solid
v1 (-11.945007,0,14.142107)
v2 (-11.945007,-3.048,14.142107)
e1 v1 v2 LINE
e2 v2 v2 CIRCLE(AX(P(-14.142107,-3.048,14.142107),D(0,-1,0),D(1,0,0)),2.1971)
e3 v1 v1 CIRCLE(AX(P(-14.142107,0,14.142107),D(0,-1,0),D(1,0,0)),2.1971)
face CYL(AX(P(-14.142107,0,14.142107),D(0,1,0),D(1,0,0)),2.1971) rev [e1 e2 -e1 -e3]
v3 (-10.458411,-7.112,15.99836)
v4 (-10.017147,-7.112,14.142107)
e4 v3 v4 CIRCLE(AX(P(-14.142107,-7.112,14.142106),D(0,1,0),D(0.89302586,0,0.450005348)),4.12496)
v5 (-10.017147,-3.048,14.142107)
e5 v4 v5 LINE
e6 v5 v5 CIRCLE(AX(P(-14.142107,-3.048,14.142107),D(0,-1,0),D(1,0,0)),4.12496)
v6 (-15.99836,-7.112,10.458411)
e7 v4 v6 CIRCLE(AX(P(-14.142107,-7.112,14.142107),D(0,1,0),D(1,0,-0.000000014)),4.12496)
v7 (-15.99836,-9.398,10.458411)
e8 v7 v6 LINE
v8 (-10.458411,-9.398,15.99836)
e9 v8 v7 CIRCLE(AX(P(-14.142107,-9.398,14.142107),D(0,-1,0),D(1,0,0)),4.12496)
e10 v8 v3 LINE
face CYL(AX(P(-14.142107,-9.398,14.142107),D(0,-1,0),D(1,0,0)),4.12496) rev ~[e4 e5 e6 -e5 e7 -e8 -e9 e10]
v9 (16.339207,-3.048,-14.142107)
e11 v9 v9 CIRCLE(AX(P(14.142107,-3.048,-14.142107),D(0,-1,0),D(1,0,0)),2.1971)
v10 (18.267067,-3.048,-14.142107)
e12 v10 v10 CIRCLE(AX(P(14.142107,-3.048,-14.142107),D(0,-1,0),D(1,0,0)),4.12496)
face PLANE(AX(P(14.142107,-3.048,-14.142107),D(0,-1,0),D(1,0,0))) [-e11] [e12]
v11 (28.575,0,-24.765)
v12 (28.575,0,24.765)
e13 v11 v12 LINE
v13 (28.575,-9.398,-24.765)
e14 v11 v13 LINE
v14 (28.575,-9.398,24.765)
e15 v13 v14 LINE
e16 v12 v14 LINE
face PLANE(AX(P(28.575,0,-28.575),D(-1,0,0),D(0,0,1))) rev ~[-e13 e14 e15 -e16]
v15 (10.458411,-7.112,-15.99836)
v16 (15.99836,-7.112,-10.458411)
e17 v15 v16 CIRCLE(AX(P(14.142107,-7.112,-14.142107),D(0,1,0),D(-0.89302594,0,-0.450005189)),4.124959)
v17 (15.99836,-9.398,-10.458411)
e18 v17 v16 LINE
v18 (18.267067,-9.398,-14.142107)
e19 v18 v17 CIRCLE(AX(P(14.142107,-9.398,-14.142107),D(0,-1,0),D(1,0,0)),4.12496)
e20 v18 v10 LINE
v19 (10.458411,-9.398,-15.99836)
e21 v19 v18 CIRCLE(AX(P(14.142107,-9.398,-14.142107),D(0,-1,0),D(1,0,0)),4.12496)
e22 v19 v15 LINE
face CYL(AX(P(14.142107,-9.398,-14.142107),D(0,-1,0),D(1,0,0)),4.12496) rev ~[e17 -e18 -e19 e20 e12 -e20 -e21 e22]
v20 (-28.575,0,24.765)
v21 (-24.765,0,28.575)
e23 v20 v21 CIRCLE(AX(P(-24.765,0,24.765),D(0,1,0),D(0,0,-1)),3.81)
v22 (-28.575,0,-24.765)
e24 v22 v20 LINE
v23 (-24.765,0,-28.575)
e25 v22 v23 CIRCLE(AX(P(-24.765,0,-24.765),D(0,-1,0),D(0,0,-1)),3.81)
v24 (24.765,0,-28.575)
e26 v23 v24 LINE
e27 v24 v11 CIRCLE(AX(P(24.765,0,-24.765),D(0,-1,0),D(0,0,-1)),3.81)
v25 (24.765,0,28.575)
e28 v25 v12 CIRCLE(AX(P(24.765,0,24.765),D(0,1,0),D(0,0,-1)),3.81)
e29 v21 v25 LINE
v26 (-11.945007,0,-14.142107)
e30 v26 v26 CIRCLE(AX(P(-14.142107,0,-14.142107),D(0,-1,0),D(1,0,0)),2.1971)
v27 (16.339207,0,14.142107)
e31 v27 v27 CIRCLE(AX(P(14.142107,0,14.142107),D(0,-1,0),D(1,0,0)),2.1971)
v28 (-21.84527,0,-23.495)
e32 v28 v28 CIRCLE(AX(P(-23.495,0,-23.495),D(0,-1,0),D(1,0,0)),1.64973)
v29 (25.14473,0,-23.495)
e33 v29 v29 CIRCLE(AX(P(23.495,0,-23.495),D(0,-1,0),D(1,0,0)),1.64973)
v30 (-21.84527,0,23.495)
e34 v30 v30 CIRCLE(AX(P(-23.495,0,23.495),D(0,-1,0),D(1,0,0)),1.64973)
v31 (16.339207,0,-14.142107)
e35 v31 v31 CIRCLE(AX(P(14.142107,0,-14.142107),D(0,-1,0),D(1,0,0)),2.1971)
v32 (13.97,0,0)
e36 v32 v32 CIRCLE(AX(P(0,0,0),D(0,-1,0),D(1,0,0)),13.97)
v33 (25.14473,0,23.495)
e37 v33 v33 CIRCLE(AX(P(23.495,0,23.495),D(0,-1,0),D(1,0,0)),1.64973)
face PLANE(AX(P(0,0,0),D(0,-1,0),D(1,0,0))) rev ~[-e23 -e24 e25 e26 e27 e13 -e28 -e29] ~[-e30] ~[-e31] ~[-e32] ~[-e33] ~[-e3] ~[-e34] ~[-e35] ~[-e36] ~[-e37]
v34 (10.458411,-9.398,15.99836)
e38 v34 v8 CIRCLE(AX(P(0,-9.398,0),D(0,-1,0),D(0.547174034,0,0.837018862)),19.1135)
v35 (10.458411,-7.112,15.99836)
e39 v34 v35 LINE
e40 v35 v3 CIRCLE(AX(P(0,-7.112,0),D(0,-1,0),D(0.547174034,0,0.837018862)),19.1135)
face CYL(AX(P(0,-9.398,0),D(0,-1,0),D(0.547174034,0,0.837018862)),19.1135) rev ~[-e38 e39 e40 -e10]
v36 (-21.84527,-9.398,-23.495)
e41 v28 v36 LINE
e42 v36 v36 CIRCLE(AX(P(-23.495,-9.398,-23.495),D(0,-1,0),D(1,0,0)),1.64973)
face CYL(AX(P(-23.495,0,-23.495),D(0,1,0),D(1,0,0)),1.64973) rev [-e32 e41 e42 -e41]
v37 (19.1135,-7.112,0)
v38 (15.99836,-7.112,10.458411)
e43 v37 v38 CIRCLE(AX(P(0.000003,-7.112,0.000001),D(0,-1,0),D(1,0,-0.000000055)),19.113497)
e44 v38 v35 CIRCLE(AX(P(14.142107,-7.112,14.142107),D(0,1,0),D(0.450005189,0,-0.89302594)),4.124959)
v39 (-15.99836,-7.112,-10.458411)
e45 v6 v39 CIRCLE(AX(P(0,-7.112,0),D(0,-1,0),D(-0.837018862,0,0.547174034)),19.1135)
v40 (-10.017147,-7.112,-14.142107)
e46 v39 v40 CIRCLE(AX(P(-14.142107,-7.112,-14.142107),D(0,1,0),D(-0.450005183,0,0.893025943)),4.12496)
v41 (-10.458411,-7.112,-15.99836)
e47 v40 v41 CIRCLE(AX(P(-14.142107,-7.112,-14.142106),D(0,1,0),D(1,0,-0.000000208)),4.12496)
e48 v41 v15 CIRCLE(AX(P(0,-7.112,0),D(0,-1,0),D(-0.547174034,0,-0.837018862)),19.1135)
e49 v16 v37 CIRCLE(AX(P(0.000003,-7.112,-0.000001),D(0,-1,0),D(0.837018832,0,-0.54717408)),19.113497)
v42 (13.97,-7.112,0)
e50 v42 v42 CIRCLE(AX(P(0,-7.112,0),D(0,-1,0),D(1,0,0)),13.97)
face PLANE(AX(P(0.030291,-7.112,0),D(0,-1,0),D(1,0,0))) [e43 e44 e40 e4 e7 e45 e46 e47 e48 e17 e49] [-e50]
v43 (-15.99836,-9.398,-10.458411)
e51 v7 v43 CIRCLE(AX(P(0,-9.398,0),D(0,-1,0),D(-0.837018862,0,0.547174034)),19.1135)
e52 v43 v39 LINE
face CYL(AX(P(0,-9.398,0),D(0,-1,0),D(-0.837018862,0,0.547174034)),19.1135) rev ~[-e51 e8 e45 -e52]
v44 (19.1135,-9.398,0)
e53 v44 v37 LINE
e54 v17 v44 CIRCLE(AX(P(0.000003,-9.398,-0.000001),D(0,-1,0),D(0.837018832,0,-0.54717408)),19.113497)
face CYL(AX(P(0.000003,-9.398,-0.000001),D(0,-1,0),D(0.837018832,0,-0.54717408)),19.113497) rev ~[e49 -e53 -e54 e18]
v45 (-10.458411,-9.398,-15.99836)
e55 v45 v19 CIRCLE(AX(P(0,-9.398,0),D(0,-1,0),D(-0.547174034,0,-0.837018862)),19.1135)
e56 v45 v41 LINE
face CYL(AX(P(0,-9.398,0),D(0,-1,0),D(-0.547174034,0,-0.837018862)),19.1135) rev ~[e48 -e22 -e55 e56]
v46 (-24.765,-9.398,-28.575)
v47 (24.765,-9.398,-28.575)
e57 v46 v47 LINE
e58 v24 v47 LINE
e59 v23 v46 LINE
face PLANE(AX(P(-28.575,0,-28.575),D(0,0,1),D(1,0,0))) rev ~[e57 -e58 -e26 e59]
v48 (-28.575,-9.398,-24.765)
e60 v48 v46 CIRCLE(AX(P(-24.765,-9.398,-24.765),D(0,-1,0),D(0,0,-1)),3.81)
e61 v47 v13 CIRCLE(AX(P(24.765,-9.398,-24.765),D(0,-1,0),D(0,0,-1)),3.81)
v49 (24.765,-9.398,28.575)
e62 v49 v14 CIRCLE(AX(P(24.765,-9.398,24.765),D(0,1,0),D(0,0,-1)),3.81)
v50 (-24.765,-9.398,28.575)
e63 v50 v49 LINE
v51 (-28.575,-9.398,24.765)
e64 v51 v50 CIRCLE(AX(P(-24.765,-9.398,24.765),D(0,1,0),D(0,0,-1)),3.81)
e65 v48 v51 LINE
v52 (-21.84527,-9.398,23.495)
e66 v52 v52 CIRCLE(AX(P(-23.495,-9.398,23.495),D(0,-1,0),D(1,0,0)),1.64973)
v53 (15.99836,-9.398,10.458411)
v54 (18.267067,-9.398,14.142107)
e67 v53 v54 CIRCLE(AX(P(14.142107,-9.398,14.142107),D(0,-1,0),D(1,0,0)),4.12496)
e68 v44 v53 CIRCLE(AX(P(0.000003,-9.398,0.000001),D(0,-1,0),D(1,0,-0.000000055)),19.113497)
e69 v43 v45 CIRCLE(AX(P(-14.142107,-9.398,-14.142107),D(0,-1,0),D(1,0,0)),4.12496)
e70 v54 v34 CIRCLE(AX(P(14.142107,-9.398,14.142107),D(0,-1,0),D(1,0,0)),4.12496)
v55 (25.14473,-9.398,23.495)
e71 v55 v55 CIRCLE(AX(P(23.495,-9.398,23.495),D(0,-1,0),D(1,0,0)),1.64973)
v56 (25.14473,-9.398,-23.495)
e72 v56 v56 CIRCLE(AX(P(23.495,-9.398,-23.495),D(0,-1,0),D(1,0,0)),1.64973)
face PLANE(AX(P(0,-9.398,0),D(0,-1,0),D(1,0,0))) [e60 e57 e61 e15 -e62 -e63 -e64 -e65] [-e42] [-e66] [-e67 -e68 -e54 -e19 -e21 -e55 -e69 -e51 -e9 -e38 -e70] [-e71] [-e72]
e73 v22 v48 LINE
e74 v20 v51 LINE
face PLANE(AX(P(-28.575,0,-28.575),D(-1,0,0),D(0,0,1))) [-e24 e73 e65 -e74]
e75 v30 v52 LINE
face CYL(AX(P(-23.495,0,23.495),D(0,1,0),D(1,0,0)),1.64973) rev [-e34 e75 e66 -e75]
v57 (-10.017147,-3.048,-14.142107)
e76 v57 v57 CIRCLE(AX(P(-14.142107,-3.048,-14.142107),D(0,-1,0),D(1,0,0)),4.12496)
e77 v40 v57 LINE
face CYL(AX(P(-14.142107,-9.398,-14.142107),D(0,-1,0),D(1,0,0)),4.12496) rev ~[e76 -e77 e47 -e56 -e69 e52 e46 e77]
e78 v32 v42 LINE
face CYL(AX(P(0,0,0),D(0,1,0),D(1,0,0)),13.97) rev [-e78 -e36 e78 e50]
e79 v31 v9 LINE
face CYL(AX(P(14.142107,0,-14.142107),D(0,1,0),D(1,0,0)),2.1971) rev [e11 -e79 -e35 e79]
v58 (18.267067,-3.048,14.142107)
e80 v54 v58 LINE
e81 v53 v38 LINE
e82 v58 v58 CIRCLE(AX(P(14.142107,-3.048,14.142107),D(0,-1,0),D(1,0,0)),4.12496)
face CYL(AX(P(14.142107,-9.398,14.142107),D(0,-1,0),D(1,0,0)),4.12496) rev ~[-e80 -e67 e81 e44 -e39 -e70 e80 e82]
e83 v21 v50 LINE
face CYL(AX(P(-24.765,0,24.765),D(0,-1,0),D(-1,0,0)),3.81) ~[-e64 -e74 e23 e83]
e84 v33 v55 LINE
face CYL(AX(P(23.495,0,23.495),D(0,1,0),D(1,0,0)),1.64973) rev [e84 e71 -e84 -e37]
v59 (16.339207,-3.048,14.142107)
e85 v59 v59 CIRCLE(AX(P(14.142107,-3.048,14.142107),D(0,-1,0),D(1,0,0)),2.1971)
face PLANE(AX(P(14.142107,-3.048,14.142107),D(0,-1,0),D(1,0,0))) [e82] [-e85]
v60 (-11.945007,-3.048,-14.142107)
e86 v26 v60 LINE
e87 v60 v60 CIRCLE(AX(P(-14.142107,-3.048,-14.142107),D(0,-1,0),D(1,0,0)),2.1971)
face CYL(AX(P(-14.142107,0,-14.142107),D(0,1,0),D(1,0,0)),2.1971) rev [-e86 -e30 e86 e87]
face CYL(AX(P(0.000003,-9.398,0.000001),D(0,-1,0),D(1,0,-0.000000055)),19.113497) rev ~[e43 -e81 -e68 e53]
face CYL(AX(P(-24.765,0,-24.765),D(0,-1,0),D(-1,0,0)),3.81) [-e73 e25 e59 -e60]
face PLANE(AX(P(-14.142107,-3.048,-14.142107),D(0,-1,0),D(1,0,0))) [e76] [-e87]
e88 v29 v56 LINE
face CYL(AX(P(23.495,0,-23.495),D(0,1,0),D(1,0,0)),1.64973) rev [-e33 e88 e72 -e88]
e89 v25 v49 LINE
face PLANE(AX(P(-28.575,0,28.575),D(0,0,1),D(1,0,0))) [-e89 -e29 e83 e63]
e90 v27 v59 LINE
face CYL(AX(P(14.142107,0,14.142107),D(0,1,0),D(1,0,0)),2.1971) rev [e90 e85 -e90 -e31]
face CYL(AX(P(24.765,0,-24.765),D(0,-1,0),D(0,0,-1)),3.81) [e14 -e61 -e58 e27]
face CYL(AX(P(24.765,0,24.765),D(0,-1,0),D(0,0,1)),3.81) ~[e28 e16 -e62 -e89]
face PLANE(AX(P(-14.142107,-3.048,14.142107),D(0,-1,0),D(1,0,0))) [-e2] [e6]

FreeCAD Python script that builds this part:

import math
import FreeCAD as App
import Part
import Sketcher
Q = App.Units.Quantity


def edges_at(feature, points):
    """Names of the edges that pass closest to the given points."""
    edges = feature.Shape.Edges
    near = lambda p: min(range(len(edges)), key=lambda i: edges[i].distToShape(Part.Vertex(*p))[0])
    return sorted({f"Edge{near(p) + 1}" for p in points})


def add_polygon(sketch, points):
    """Adds a closed chain of lines whose ends are joined by coincident constraints."""
    first, n = sketch.GeometryCount, len(points)
    for a, b in zip(points, points[1:] + points[:1]):
        sketch.addGeometry(Part.LineSegment(App.Vector(*a, 0), App.Vector(*b, 0)), False)
    for i in range(n):
        sketch.addConstraint(Sketcher.Constraint("Coincident", first + i, 2, first + (i + 1) % n, 1))

doc = App.newDocument("Part")
params = doc.addObject("Spreadsheet::Sheet", "Params")
for row, (alias, value) in enumerate([
    ("sketch1_diameter", "1.1 in"),
    ("sketch1_diameter2", "0.173 in"),
    ("sketch1_width", "2.25 in"),
    ("pad1_length", "0.37 in"),
    ("sketch2_diameter", "0.173 in"),
    ("pocket1_length", "0.25 in"),
    ("sketch3_diameter", "1.1 in"),
    ("pocket2_length", "0.09 in"),
    ("fillet_radius", "0.15 in"),
], start=1):
    params.set(f"A{row}", alias)
    params.set(f"B{row}", "=" + value)
    params.setAlias(f"B{row}", alias)

body = doc.addObject("PartDesign::Body", "Body")

sketch1 = doc.addObject("Sketcher::SketchObject", "Sketch")
body.addObject(sketch1)
sketch1.AttachmentSupport = (doc.XZ_Plane, [""])
sketch1.MapMode = "FlatFace"
add_polygon(sketch1, [(-28.575, 28.575), (-28.575, -28.575), (28.575, -28.575), (28.575, 28.575)])
sketch1.addGeometry(Part.Circle(App.Vector(-23.495, -23.495, 0), App.Vector(0, 0, 1), 1.64973), False)
sketch1.addGeometry(Part.Circle(App.Vector(-14.142107, -14.142107, 0), App.Vector(0, 0, 1), 2.1971), False)
sketch1.addGeometry(Part.Circle(App.Vector(0, 0, 0), App.Vector(0, 0, 1), 13.97), False)
sketch1.addGeometry(Part.Circle(App.Vector(23.495, -23.495, 0), App.Vector(0, 0, 1), 1.64973), False)
sketch1.addGeometry(Part.Circle(App.Vector(14.142107, -14.142107, 0), App.Vector(0, 0, 1), 2.1971), False)
sketch1.addGeometry(Part.Circle(App.Vector(-14.142107, 14.142107, 0), App.Vector(0, 0, 1), 2.1971), False)
sketch1.addGeometry(Part.Circle(App.Vector(-23.495, 23.495, 0), App.Vector(0, 0, 1), 1.64973), False)
sketch1.addGeometry(Part.Circle(App.Vector(14.142107, 14.142107, 0), App.Vector(0, 0, 1), 2.1971), False)
sketch1.addGeometry(Part.Circle(App.Vector(23.495, 23.495, 0), App.Vector(0, 0, 1), 1.64973), False)
sketch1.addConstraint([
    Sketcher.Constraint("Vertical", 0),
    Sketcher.Constraint("Horizontal", 1),
    Sketcher.Constraint("Vertical", 2),
    Sketcher.Constraint("Horizontal", 3),
    Sketcher.Constraint("Coincident", 6, 3, -1, 1),
    Sketcher.Constraint("Equal", 4, 7),
    Sketcher.Constraint("Equal", 5, 8),
    Sketcher.Constraint("Equal", 8, 9),
    Sketcher.Constraint("Equal", 7, 10),
    Sketcher.Constraint("Equal", 9, 11),
    Sketcher.Constraint("Equal", 10, 12),
    Sketcher.Constraint("Symmetric", 8, 3, 9, 3, -1, 1),
    Sketcher.Constraint("Symmetric", 7, 3, 10, 3, -1, 1),
    Sketcher.Constraint("Symmetric", 5, 3, 11, 3, -1, 1),
    Sketcher.Constraint("Symmetric", 4, 3, 12, 3, -1, 1),
    Sketcher.Constraint("Symmetric", 0, 2, 2, 2, -1, 1),
    Sketcher.Constraint("Symmetric", 4, 3, 7, 3, -2),
    Sketcher.Constraint("Symmetric", 5, 3, 8, 3, -2),
    Sketcher.Constraint("Equal", 3, 0),
    Sketcher.Constraint("Diameter", 6, Q("1.1 in")),
    Sketcher.Constraint("Diameter", 5, Q("0.173 in")),
    Sketcher.Constraint("Diameter", 4, Q("0.1299 in")),
    Sketcher.Constraint("DistanceX", 1, 1, 1, 2, Q("2.25 in")),
    Sketcher.Constraint("DistanceX", 0, 2, 4, 3, Q("0.2 in")),
    Sketcher.Constraint("DistanceY", 0, 2, 4, 3, Q("0.2 in")),
    Sketcher.Constraint("DistanceX", 5, 3, -1, 1, 14.142107),
    Sketcher.Constraint("DistanceY", 5, 3, -1, 1, 14.142107),
])
sketch1.setExpression("Constraints[23]", "Params.sketch1_diameter")
sketch1.setExpression("Constraints[24]", "Params.sketch1_diameter2")
sketch1.setExpression("Constraints[26]", "Params.sketch1_width")
pad1 = doc.addObject("PartDesign::Pad", "Pad")
body.addObject(pad1)
pad1.Profile = sketch1
pad1.setExpression("Length", "Params.pad1_length")

sketch2 = doc.addObject("Sketcher::SketchObject", "Sketch001")
body.addObject(sketch2)
sketch2.AttachmentSupport = (doc.XZ_Plane, [""])
sketch2.MapMode = "FlatFace"
sketch2.AttachmentOffset = App.Placement(App.Vector(0, 0, 0.37 * 25.4), App.Rotation())
sketch2.addGeometry([
    Part.Circle(App.Vector(-14.142107, 14.142107, 0), App.Vector(0, 0, 1), 4.12496),
    Part.Circle(App.Vector(-14.142107, 14.142107, 0), App.Vector(0, 0, 1), 2.1971),
    Part.Circle(App.Vector(14.142107, 14.142107, 0), App.Vector(0, 0, 1), 4.12496),
    Part.Circle(App.Vector(14.142107, 14.142107, 0), App.Vector(0, 0, 1), 2.1971),
    Part.Circle(App.Vector(14.142107, -14.142107, 0), App.Vector(0, 0, 1), 4.12496),
    Part.Circle(App.Vector(14.142107, -14.142107, 0), App.Vector(0, 0, 1), 2.1971),
    Part.Circle(App.Vector(-14.142107, -14.142107, 0), App.Vector(0, 0, 1), 4.12496),
    Part.Circle(App.Vector(-14.142107, -14.142107, 0), App.Vector(0, 0, 1), 2.1971),
], False)
sketch2.addConstraint([
    Sketcher.Constraint("Coincident", 1, 3, 0, 3),
    Sketcher.Constraint("Coincident", 3, 3, 2, 3),
    Sketcher.Constraint("Coincident", 5, 3, 4, 3),
    Sketcher.Constraint("Coincident", 7, 3, 6, 3),
    Sketcher.Constraint("Equal", 0, 2),
    Sketcher.Constraint("Equal", 1, 3),
    Sketcher.Constraint("Equal", 2, 4),
    Sketcher.Constraint("Equal", 3, 5),
    Sketcher.Constraint("Equal", 4, 6),
    Sketcher.Constraint("Equal", 5, 7),
    Sketcher.Constraint("Symmetric", 0, 3, 4, 3, -1, 1),
    Sketcher.Constraint("Symmetric", 2, 3, 6, 3, -1, 1),
    Sketcher.Constraint("Symmetric", 0, 3, 2, 3, -2),
    Sketcher.Constraint("Diameter", 1, Q("0.173 in")),
    Sketcher.Constraint("Diameter", 0, Q("0.3248 in")),
    Sketcher.Constraint("DistanceX", 0, 3, -1, 1, 14.142107),
    Sketcher.Constraint("DistanceY", -1, 1, 0, 3, 14.142107),
])
sketch2.setExpression("Constraints[13]", "Params.sketch2_diameter")
pocket1 = doc.addObject("PartDesign::Pocket", "Pocket")
body.addObject(pocket1)
pocket1.Profile = sketch2
pocket1.setExpression("Length", "Params.pocket1_length")

sketch3 = doc.addObject("Sketcher::SketchObject", "Sketch002")
body.addObject(sketch3)
sketch3.AttachmentSupport = (doc.XZ_Plane, [""])
sketch3.MapMode = "FlatFace"
sketch3.AttachmentOffset = App.Placement(App.Vector(0, 0, 0.37 * 25.4), App.Rotation())
sketch3.addGeometry([
    Part.ArcOfCircle(Part.Circle(App.Vector(0.000003, -0.000001, 0), App.Vector(0, 0, 1), 19.113497), math.radians(-33.173358), math.radians(0.000003)),
    Part.ArcOfCircle(Part.Circle(App.Vector(0.000003, 0.000001, 0), App.Vector(0, 0, 1), 19.113497), math.radians(-0.000003), math.radians(33.173358)),
    Part.ArcOfCircle(Part.Circle(App.Vector(14.142107, 14.142107, 0), App.Vector(0, 0, 1), 4.124959), math.radians(153.255983), math.radians(296.744017)),
    Part.ArcOfCircle(Part.Circle(App.Vector(0, 0, 0), App.Vector(0, 0, 1), 19.1135), math.radians(56.826645), math.radians(123.173355)),
    Part.ArcOfCircle(Part.Circle(App.Vector(-14.142107, 14.142106, 0), App.Vector(0, 0, 1), 4.12496), math.radians(0.000012), math.radians(26.744027)),
    Part.ArcOfCircle(Part.Circle(App.Vector(-14.142107, 14.142107, 0), App.Vector(0, 0, 1), 4.12496), math.radians(-116.744017), math.radians(-0.000001)),
    Part.ArcOfCircle(Part.Circle(App.Vector(0, 0, 0), App.Vector(0, 0, 1), 19.1135), math.radians(146.826645), math.radians(213.173355)),
    Part.ArcOfCircle(Part.Circle(App.Vector(-14.142107, -14.142107, 0), App.Vector(0, 0, 1), 4.12496), math.radians(0.000001), math.radians(116.744017)),
    Part.ArcOfCircle(Part.Circle(App.Vector(-14.142107, -14.142106, 0), App.Vector(0, 0, 1), 4.12496), math.radians(-26.744027), math.radians(-0.000012)),
    Part.ArcOfCircle(Part.Circle(App.Vector(0, 0, 0), App.Vector(0, 0, 1), 19.1135), math.radians(-123.173355), math.radians(-56.826645)),
    Part.ArcOfCircle(Part.Circle(App.Vector(14.142107, -14.142107, 0), App.Vector(0, 0, 1), 4.124959), math.radians(63.255983), math.radians(206.744017)),
    Part.Circle(App.Vector(0, 0, 0), App.Vector(0, 0, 1), 13.97),
], False)
sketch3.addConstraint([
    Sketcher.Constraint("Tangent", 0, 2, 1, 1),
    Sketcher.Constraint("Coincident", 1, 2, 2, 2),
    Sketcher.Constraint("Coincident", 2, 1, 3, 1),
    Sketcher.Constraint("Coincident", 3, 2, 4, 2),
    Sketcher.Constraint("Tangent", 4, 1, 5, 2),
    Sketcher.Constraint("Coincident", 5, 1, 6, 1),
    Sketcher.Constraint("Coincident", 6, 2, 7, 2),
    Sketcher.Constraint("Tangent", 7, 1, 8, 2),
    Sketcher.Constraint("Coincident", 8, 1, 9, 1),
    Sketcher.Constraint("Coincident", 9, 2, 10, 2),
    Sketcher.Constraint("Coincident", 10, 1, 0, 1),
    Sketcher.Constraint("Coincident", 0, 3, -1, 1),
    Sketcher.Constraint("Coincident", 3, 3, -1, 1),
    Sketcher.Constraint("Coincident", 6, 3, -1, 1),
    Sketcher.Constraint("Coincident", 9, 3, -1, 1),
    Sketcher.Constraint("Coincident", 11, 3, -1, 1),
    Sketcher.Constraint("Equal", 0, 1),
    Sketcher.Constraint("Equal", 2, 4),
    Sketcher.Constraint("Equal", 4, 5),
    Sketcher.Constraint("Equal", 3, 6),
    Sketcher.Constraint("Equal", 5, 7),
    Sketcher.Constraint("Equal", 7, 8),
    Sketcher.Constraint("Equal", 6, 9),
    Sketcher.Constraint("Equal", 8, 10),
    Sketcher.Constraint("Symmetric", 2, 3, 7, 3, -1, 1),
    Sketcher.Constraint("Symmetric", 4, 3, 10, 3, -1, 1),
    Sketcher.Constraint("Symmetric", 2, 3, 4, 3, -2),
    Sketcher.Constraint("PointOnObject", 0, 2, -1),
    Sketcher.Constraint("Horizontal", 5, 3, 4, 1),
    Sketcher.Constraint("Horizontal", 1, 2, 5, 1),
    Sketcher.Constraint("Horizontal", 10, 3, 7, 1),
    Sketcher.Constraint("Diameter", 11, Q("1.1 in")),
    Sketcher.Constraint("Radius", 0, Q("0.7524999 in")),
    Sketcher.Constraint("Radius", 2, Q("0.1624 in")),
    Sketcher.Constraint("DistanceX", -1, 1, 1, 2, 15.99836),
    Sketcher.Constraint("DistanceX", -1, 1, 2, 1, 10.458411),
])
sketch3.setExpression("Constraints[31]", "Params.sketch3_diameter")
pocket2 = doc.addObject("PartDesign::Pocket", "Pocket001")
body.addObject(pocket2)
pocket2.Profile = sketch3
pocket2.setExpression("Length", "Params.pocket2_length")
doc.recompute()

fillet = doc.addObject("PartDesign::Fillet", "Fillet")
body.addObject(fillet)
fillet.Base = (pocket2, edges_at(pocket2, [
    (-28.575, -4.699, 28.575),
    (28.575, -4.699, 28.575),
    (28.575, -4.699, -28.575),
    (-28.575, -4.699, -28.575),
]))
fillet.setExpression("Radius", "Params.fillet_radius")

doc.recompute()
